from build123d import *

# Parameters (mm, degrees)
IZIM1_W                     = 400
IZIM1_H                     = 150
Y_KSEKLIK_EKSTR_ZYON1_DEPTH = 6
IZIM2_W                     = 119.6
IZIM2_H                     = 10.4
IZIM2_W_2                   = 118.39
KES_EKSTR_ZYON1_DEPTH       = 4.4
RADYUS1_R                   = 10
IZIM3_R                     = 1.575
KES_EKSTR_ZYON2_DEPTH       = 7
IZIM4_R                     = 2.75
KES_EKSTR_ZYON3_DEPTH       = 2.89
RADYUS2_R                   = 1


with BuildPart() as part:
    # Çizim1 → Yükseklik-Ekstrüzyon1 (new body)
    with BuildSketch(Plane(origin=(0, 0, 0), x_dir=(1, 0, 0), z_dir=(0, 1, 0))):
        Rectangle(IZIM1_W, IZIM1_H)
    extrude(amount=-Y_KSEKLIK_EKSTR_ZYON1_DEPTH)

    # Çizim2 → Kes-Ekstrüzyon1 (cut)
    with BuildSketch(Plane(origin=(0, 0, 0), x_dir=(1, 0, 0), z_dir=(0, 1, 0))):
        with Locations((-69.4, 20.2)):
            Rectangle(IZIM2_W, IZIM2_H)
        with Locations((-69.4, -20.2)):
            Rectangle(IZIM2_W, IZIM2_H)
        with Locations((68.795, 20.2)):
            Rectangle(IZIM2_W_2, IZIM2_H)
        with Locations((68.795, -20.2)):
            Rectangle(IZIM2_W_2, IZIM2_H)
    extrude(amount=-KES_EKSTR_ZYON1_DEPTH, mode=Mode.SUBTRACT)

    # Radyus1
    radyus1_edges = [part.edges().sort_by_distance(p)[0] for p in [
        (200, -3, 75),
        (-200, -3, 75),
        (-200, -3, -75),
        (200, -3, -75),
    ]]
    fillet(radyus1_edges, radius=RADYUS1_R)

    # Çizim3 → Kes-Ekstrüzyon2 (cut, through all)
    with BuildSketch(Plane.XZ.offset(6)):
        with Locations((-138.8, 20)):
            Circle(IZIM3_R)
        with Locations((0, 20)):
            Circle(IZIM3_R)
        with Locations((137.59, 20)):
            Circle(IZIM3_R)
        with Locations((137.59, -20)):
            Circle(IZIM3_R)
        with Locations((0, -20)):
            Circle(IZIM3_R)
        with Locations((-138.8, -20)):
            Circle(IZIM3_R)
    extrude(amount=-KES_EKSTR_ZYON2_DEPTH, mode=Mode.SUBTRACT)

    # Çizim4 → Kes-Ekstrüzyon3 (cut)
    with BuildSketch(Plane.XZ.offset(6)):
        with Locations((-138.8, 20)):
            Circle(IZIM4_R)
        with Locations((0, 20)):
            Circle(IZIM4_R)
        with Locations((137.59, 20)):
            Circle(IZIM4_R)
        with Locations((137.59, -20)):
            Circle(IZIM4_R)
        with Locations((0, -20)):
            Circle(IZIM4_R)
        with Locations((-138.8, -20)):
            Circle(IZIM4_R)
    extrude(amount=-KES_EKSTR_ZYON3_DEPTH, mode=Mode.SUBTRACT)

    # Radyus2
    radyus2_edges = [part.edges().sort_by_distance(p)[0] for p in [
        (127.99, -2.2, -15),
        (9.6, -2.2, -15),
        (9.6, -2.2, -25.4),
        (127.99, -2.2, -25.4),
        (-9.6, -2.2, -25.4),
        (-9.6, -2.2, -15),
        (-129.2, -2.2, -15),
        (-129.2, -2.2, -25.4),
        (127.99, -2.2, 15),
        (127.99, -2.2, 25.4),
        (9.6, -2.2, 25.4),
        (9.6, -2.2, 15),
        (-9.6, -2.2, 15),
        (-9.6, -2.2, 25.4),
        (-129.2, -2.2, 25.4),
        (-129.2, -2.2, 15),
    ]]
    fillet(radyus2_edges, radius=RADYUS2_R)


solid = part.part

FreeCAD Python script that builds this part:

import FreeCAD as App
import Part
import Sketcher


def edges_at(feature, points):
    """Names of the edges that pass closest to the given points."""
    edges = feature.Shape.Edges
    near = lambda p: min(range(len(edges)), key=lambda i: edges[i].distToShape(Part.Vertex(*p))[0])
    return sorted({f"Edge{near(p) + 1}" for p in points})

doc = App.newDocument("Part")
body = doc.addObject("PartDesign::Body", "Body")

# Sketch on XZ plane
sketch1 = doc.addObject("Sketcher::SketchObject", "Sketch")
body.addObject(sketch1)
sketch1.AttachmentSupport = (doc.XZ_Plane, [""])
sketch1.MapMode = "FlatFace"
sketch1.addGeometry([
    Part.LineSegment(App.Vector(-200, -75, 0), App.Vector(-200, 75, 0)),
    Part.LineSegment(App.Vector(-200, 75, 0), App.Vector(200, 75, 0)),
    Part.LineSegment(App.Vector(200, 75, 0), App.Vector(200, -75, 0)),
    Part.LineSegment(App.Vector(200, -75, 0), App.Vector(-200, -75, 0)),
], False)
sketch1.addConstraint([
    Sketcher.Constraint("Coincident", 0, 2, 1, 1),
    Sketcher.Constraint("Coincident", 1, 2, 2, 1),
    Sketcher.Constraint("Coincident", 2, 2, 3, 1),
    Sketcher.Constraint("Coincident", 3, 2, 0, 1),
    Sketcher.Constraint("Vertical", 0),
    Sketcher.Constraint("Horizontal", 1),
    Sketcher.Constraint("Vertical", 2),
    Sketcher.Constraint("Horizontal", 3),
    Sketcher.Constraint("Symmetric", 0, 2, 2, 2, -1, 1),
    Sketcher.Constraint("DistanceX", 1, 1, 1, 2, 400.0),
    Sketcher.Constraint("DistanceY", 0, 1, 0, 2, 150.0),
])
pad1 = doc.addObject("PartDesign::Pad", "Pad")
body.addObject(pad1)
pad1.Profile = sketch1
pad1.Length = 6

# Sketch on XZ plane
sketch2 = doc.addObject("Sketcher::SketchObject", "Sketch001")
body.addObject(sketch2)
sketch2.AttachmentSupport = (doc.XZ_Plane, [""])
sketch2.MapMode = "FlatFace"
sketch2.addGeometry([
    Part.LineSegment(App.Vector(-129, -25, 0), App.Vector(-129, -15, 0)),  # 0
    Part.LineSegment(App.Vector(-129, -15, 0), App.Vector(-10, -15, 0)),  # 1
    Part.LineSegment(App.Vector(-10, -15, 0), App.Vector(-10, -25, 0)),  # 2
    Part.LineSegment(App.Vector(-10, -25, 0), App.Vector(-129, -25, 0)),  # 3
    Part.LineSegment(App.Vector(-129, 15, 0), App.Vector(-129, 25, 0)),  # 4
    Part.LineSegment(App.Vector(-129, 25, 0), App.Vector(-10, 25, 0)),  # 5
    Part.LineSegment(App.Vector(-10, 25, 0), App.Vector(-10, 15, 0)),  # 6
    Part.LineSegment(App.Vector(-10, 15, 0), App.Vector(-129, 15, 0)),  # 7
    Part.LineSegment(App.Vector(10, -25, 0), App.Vector(10, -15, 0)),  # 8
    Part.LineSegment(App.Vector(10, -15, 0), App.Vector(128, -15, 0)),  # 9
    Part.LineSegment(App.Vector(128, -15, 0), App.Vector(128, -25, 0)),  # 10
    Part.LineSegment(App.Vector(128, -25, 0), App.Vector(10, -25, 0)),  # 11
    Part.LineSegment(App.Vector(10, 15, 0), App.Vector(10, 25, 0)),  # 12
    Part.LineSegment(App.Vector(10, 25, 0), App.Vector(128, 25, 0)),  # 13
    Part.LineSegment(App.Vector(128, 25, 0), App.Vector(128, 15, 0)),  # 14
    Part.LineSegment(App.Vector(128, 15, 0), App.Vector(10, 15, 0)),  # 15
], False)
sketch2.addConstraint([
    Sketcher.Constraint("Coincident", 0, 2, 1, 1),
    Sketcher.Constraint("Coincident", 1, 2, 2, 1),
    Sketcher.Constraint("Coincident", 2, 2, 3, 1),
    Sketcher.Constraint("Coincident", 3, 2, 0, 1),
    Sketcher.Constraint("Coincident", 4, 2, 5, 1),
    Sketcher.Constraint("Coincident", 5, 2, 6, 1),
    Sketcher.Constraint("Coincident", 6, 2, 7, 1),
    Sketcher.Constraint("Coincident", 7, 2, 4, 1),
    Sketcher.Constraint("Coincident", 8, 2, 9, 1),
    Sketcher.Constraint("Coincident", 9, 2, 10, 1),
    Sketcher.Constraint("Coincident", 10, 2, 11, 1),
    Sketcher.Constraint("Coincident", 11, 2, 8, 1),
    Sketcher.Constraint("Coincident", 12, 2, 13, 1),
    Sketcher.Constraint("Coincident", 13, 2, 14, 1),
    Sketcher.Constraint("Coincident", 14, 2, 15, 1),
    Sketcher.Constraint("Coincident", 15, 2, 12, 1),
    Sketcher.Constraint("Vertical", 0),
    Sketcher.Constraint("Horizontal", 1),
    Sketcher.Constraint("Vertical", 2),
    Sketcher.Constraint("Horizontal", 3),
    Sketcher.Constraint("Vertical", 4),
    Sketcher.Constraint("Horizontal", 5),
    Sketcher.Constraint("Vertical", 6),
    Sketcher.Constraint("Horizontal", 7),
    Sketcher.Constraint("Vertical", 8),
    Sketcher.Constraint("Horizontal", 9),
    Sketcher.Constraint("Vertical", 10),
    Sketcher.Constraint("Horizontal", 11),
    Sketcher.Constraint("Vertical", 12),
    Sketcher.Constraint("Horizontal", 13),
    Sketcher.Constraint("Vertical", 14),
    Sketcher.Constraint("Horizontal", 15),
    Sketcher.Constraint("Symmetric", 6, 2, 8, 2, -1, 1),
    Sketcher.Constraint("Symmetric", 2, 2, 12, 2, -1, 1),
    Sketcher.Constraint("Symmetric", 1, 2, 8, 2, -2),
    Sketcher.Constraint("Symmetric", 3, 2, 4, 2, -1),
    Sketcher.Constraint("Symmetric", 10, 2, 13, 2, -1),
    Sketcher.Constraint("Horizontal", 7, 2, 14, 2),
    Sketcher.Constraint("DistanceX", 1, 1, 1, 2, 119.6),
    Sketcher.Constraint("DistanceY", 0, 1, 0, 2, 10.4),
    Sketcher.Constraint("DistanceY", 0, 2, -1, 1, 15.0),
    Sketcher.Constraint("DistanceX", 9, 1, 9, 2, 118.39),
    Sketcher.Constraint("DistanceX", 0, 2, -1, 1, 129.2),
])
pocket1 = doc.addObject("PartDesign::Pocket", "Pocket")
body.addObject(pocket1)
pocket1.Profile = sketch2
pocket1.Length = 4.4
pocket1.Reversed = True
doc.recompute()

fillet = doc.addObject("PartDesign::Fillet", "Fillet")
body.addObject(fillet)
fillet.Base = (pocket1, edges_at(pocket1, [
    (200, -3, 75),
    (-200, -3, 75),
    (-200, -3, -75),
    (200, -3, -75),
]))
fillet.Radius = 10

# Sketch on XZ plane
sketch3 = doc.addObject("Sketcher::SketchObject", "Sketch002")
body.addObject(sketch3)
sketch3.AttachmentSupport = (doc.XZ_Plane, [""])
sketch3.MapMode = "FlatFace"
sketch3.AttachmentOffset = App.Placement(App.Vector(0, 0, 6), App.Rotation())
sketch3.addGeometry([
    Part.Circle(App.Vector(-138.8, 20, 0), App.Vector(0, 0, 1), 1.6),  # 0
    Part.Circle(App.Vector(0, 20, 0), App.Vector(0, 0, 1), 1.6),  # 1
    Part.Circle(App.Vector(137.6, 20, 0), App.Vector(0, 0, 1), 1.6),  # 2
    Part.Circle(App.Vector(137.6, -20, 0), App.Vector(0, 0, 1), 1.6),  # 3
    Part.Circle(App.Vector(0, -20, 0), App.Vector(0, 0, 1), 1.6),  # 4
    Part.Circle(App.Vector(-138.8, -20, 0), App.Vector(0, 0, 1), 1.6),  # 5
], False)
sketch3.addConstraint([
    Sketcher.Constraint("Equal", 0, 1),
    Sketcher.Constraint("Equal", 1, 2),
    Sketcher.Constraint("Equal", 2, 3),
    Sketcher.Constraint("Equal", 3, 4),
    Sketcher.Constraint("Equal", 4, 5),
    Sketcher.Constraint("Symmetric", 1, 3, 4, 3, -1, 1),
    Sketcher.Constraint("Symmetric", 2, 3, 3, 3, -1),
    Sketcher.Constraint("Symmetric", 0, 3, 5, 3, -1),
    Sketcher.Constraint("PointOnObject", 1, 3, -2),
    Sketcher.Constraint("Horizontal", 0, 3, 1, 3),
    Sketcher.Constraint("Horizontal", 1, 3, 2, 3),
    Sketcher.Constraint("Diameter", 0, 3.15),
    Sketcher.Constraint("DistanceY", -1, 1, 0, 3, 20.0),
    Sketcher.Constraint("DistanceX", 0, 3, -1, 1, 138.8),
    Sketcher.Constraint("DistanceX", -1, 1, 2, 3, 137.59),
])
pocket2 = doc.addObject("PartDesign::Pocket", "Pocket001")
body.addObject(pocket2)
pocket2.Profile = sketch3
pocket2.Type = "ThroughAll"

# Sketch on XZ plane
sketch4 = doc.addObject("Sketcher::SketchObject", "Sketch003")
body.addObject(sketch4)
sketch4.AttachmentSupport = (doc.XZ_Plane, [""])
sketch4.MapMode = "FlatFace"
sketch4.AttachmentOffset = App.Placement(App.Vector(0, 0, 6), App.Rotation())
sketch4.addGeometry([
    Part.Circle(App.Vector(-138.8, 20, 0), App.Vector(0, 0, 1), 2.8),  # 0
    Part.Circle(App.Vector(0, 20, 0), App.Vector(0, 0, 1), 2.8),  # 1
    Part.Circle(App.Vector(137.6, 20, 0), App.Vector(0, 0, 1), 2.8),  # 2
    Part.Circle(App.Vector(137.6, -20, 0), App.Vector(0, 0, 1), 2.8),  # 3
    Part.Circle(App.Vector(0, -20, 0), App.Vector(0, 0, 1), 2.8),  # 4
    Part.Circle(App.Vector(-138.8, -20, 0), App.Vector(0, 0, 1), 2.8),  # 5
], False)
sketch4.addConstraint([
    Sketcher.Constraint("Equal", 0, 1),
    Sketcher.Constraint("Equal", 1, 2),
    Sketcher.Constraint("Equal", 2, 3),
    Sketcher.Constraint("Equal", 3, 4),
    Sketcher.Constraint("Equal", 4, 5),
    Sketcher.Constraint("Symmetric", 1, 3, 4, 3, -1, 1),
    Sketcher.Constraint("Symmetric", 2, 3, 3, 3, -1),
    Sketcher.Constraint("Symmetric", 0, 3, 5, 3, -1),
    Sketcher.Constraint("PointOnObject", 1, 3, -2),
    Sketcher.Constraint("Horizontal", 0, 3, 1, 3),
    Sketcher.Constraint("Horizontal", 1, 3, 2, 3),
    Sketcher.Constraint("Diameter", 0, 5.5),
    Sketcher.Constraint("DistanceY", -1, 1, 0, 3, 20.0),
    Sketcher.Constraint("DistanceX", 0, 3, -1, 1, 138.8),
    Sketcher.Constraint("DistanceX", -1, 1, 2, 3, 137.59),
])
pocket3 = doc.addObject("PartDesign::Pocket", "Pocket002")
body.addObject(pocket3)
pocket3.Profile = sketch4
pocket3.Length = 2.89
doc.recompute()

fillet2 = doc.addObject("PartDesign::Fillet", "Fillet001")
body.addObject(fillet2)
fillet2.Base = (pocket3, edges_at(pocket3, [
    (127.99, -2.2, -15),
    (9.6, -2.2, -15),
    (9.6, -2.2, -25.4),
    (127.99, -2.2, -25.4),
    (-9.6, -2.2, -25.4),
    (-9.6, -2.2, -15),
    (-129.2, -2.2, -15),
    (-129.2, -2.2, -25.4),
    (127.99, -2.2, 15),
    (127.99, -2.2, 25.4),
    (9.6, -2.2, 25.4),
    (9.6, -2.2, 15),
    (-9.6, -2.2, 15),
    (-9.6, -2.2, 25.4),
    (-129.2, -2.2, 25.4),
    (-129.2, -2.2, 15),
]))
fillet2.Radius = 1

doc.recompute()
